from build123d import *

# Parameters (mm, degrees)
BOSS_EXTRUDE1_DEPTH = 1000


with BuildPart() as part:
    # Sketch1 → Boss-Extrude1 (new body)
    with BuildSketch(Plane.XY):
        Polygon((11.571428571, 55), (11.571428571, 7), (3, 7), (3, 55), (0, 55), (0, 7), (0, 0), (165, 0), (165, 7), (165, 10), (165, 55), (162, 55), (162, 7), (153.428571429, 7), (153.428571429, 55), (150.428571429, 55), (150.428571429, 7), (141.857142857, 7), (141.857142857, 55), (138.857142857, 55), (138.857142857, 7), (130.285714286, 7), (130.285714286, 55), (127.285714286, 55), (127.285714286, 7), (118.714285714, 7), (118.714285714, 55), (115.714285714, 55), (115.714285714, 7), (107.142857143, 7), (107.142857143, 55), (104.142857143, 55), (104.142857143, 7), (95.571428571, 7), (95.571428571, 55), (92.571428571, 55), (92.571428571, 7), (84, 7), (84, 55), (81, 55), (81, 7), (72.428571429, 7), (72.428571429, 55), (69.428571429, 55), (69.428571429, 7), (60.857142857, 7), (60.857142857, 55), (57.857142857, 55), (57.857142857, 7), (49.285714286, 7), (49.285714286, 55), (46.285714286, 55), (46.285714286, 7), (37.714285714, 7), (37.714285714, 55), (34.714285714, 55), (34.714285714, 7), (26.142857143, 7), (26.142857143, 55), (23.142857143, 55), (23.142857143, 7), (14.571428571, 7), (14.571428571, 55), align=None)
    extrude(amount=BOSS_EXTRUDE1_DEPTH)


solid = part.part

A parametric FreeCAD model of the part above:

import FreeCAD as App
import Part
import Sketcher

V = App.Vector
Q = App.Units.Quantity

doc = App.newDocument("Part")
body = doc.addObject("PartDesign::Body", "Body")

# Sketch on XY plane
sketch1 = body.newObject("Sketcher::SketchObject", "Sketch")
sketch1.AttachmentSupport = (doc.getObject("XY_Plane"), [""])
sketch1.MapMode = "FlatFace"
sketch1.addGeometry([
    Part.LineSegment(V(11.571429, 55, 0), V(11.571429, 7, 0)),  # 0
    Part.LineSegment(V(11.571429, 7, 0), V(3, 7, 0)),  # 1
    Part.LineSegment(V(3, 7, 0), V(3, 55, 0)),  # 2
    Part.LineSegment(V(3, 55, 0), V(0, 55, 0)),  # 3
    Part.LineSegment(V(0, 55, 0), V(0, 0, 0)),  # 4
    Part.LineSegment(V(0, 0, 0), V(165, 0, 0)),  # 5
    Part.LineSegment(V(165, 0, 0), V(165, 55, 0)),  # 6
    Part.LineSegment(V(165, 55, 0), V(162, 55, 0)),  # 7
    Part.LineSegment(V(162, 55, 0), V(162, 7, 0)),  # 8
    Part.LineSegment(V(162, 7, 0), V(153.428571, 7, 0)),  # 9
    Part.LineSegment(V(153.428571, 7, 0), V(153.428571, 55, 0)),  # 10
    Part.LineSegment(V(153.428571, 55, 0), V(150.428571, 55, 0)),  # 11
    Part.LineSegment(V(150.428571, 55, 0), V(150.428571, 7, 0)),  # 12
    Part.LineSegment(V(150.428571, 7, 0), V(141.857143, 7, 0)),  # 13
    Part.LineSegment(V(141.857143, 7, 0), V(141.857143, 55, 0)),  # 14
    Part.LineSegment(V(141.857143, 55, 0), V(138.857143, 55, 0)),  # 15
    Part.LineSegment(V(138.857143, 55, 0), V(138.857143, 7, 0)),  # 16
    Part.LineSegment(V(138.857143, 7, 0), V(130.285714, 7, 0)),  # 17
    Part.LineSegment(V(130.285714, 7, 0), V(130.285714, 55, 0)),  # 18
    Part.LineSegment(V(130.285714, 55, 0), V(127.285714, 55, 0)),  # 19
    Part.LineSegment(V(127.285714, 55, 0), V(127.285714, 7, 0)),  # 20
    Part.LineSegment(V(127.285714, 7, 0), V(118.714286, 7, 0)),  # 21
    Part.LineSegment(V(118.714286, 7, 0), V(118.714286, 55, 0)),  # 22
    Part.LineSegment(V(118.714286, 55, 0), V(115.714286, 55, 0)),  # 23
    Part.LineSegment(V(115.714286, 55, 0), V(115.714286, 7, 0)),  # 24
    Part.LineSegment(V(115.714286, 7, 0), V(107.142857, 7, 0)),  # 25
    Part.LineSegment(V(107.142857, 7, 0), V(107.142857, 55, 0)),  # 26
    Part.LineSegment(V(107.142857, 55, 0), V(104.142857, 55, 0)),  # 27
    Part.LineSegment(V(104.142857, 55, 0), V(104.142857, 7, 0)),  # 28
    Part.LineSegment(V(104.142857, 7, 0), V(95.571429, 7, 0)),  # 29
    Part.LineSegment(V(95.571429, 7, 0), V(95.571429, 55, 0)),  # 30
    Part.LineSegment(V(95.571429, 55, 0), V(92.571429, 55, 0)),  # 31
    Part.LineSegment(V(92.571429, 55, 0), V(92.571429, 7, 0)),  # 32
    Part.LineSegment(V(92.571429, 7, 0), V(84, 7, 0)),  # 33
    Part.LineSegment(V(84, 7, 0), V(84, 55, 0)),  # 34
    Part.LineSegment(V(84, 55, 0), V(81, 55, 0)),  # 35
    Part.LineSegment(V(81, 55, 0), V(81, 7, 0)),  # 36
    Part.LineSegment(V(81, 7, 0), V(72.428571, 7, 0)),  # 37
    Part.LineSegment(V(72.428571, 7, 0), V(72.428571, 55, 0)),  # 38
    Part.LineSegment(V(72.428571, 55, 0), V(69.428571, 55, 0)),  # 39
    Part.LineSegment(V(69.428571, 55, 0), V(69.428571, 7, 0)),  # 40
    Part.LineSegment(V(69.428571, 7, 0), V(60.857143, 7, 0)),  # 41
    Part.LineSegment(V(60.857143, 7, 0), V(60.857143, 55, 0)),  # 42
    Part.LineSegment(V(60.857143, 55, 0), V(57.857143, 55, 0)),  # 43
    Part.LineSegment(V(57.857143, 55, 0), V(57.857143, 7, 0)),  # 44
    Part.LineSegment(V(57.857143, 7, 0), V(49.285714, 7, 0)),  # 45
    Part.LineSegment(V(49.285714, 7, 0), V(49.285714, 55, 0)),  # 46
    Part.LineSegment(V(49.285714, 55, 0), V(46.285714, 55, 0)),  # 47
    Part.LineSegment(V(46.285714, 55, 0), V(46.285714, 7, 0)),  # 48
    Part.LineSegment(V(46.285714, 7, 0), V(37.714286, 7, 0)),  # 49
    Part.LineSegment(V(37.714286, 7, 0), V(37.714286, 55, 0)),  # 50
    Part.LineSegment(V(37.714286, 55, 0), V(34.714286, 55, 0)),  # 51
    Part.LineSegment(V(34.714286, 55, 0), V(34.714286, 7, 0)),  # 52
    Part.LineSegment(V(34.714286, 7, 0), V(26.142857, 7, 0)),  # 53
    Part.LineSegment(V(26.142857, 7, 0), V(26.142857, 55, 0)),  # 54
    Part.LineSegment(V(26.142857, 55, 0), V(23.142857, 55, 0)),  # 55
    Part.LineSegment(V(23.142857, 55, 0), V(23.142857, 7, 0)),  # 56
    Part.LineSegment(V(23.142857, 7, 0), V(14.571429, 7, 0)),  # 57
    Part.LineSegment(V(14.571429, 7, 0), V(14.571429, 55, 0)),  # 58
    Part.LineSegment(V(14.571429, 55, 0), V(11.571429, 55, 0)),  # 59
], False)
sketch1.addConstraint([
    Sketcher.Constraint("Coincident", 0, 2, 1, 1),
    Sketcher.Constraint("Coincident", 1, 2, 2, 1),
    Sketcher.Constraint("Coincident", 2, 2, 3, 1),
    Sketcher.Constraint("Coincident", 3, 2, 4, 1),
    Sketcher.Constraint("Coincident", 4, 2, 5, 1),
    Sketcher.Constraint("Coincident", 5, 2, 6, 1),
    Sketcher.Constraint("Coincident", 6, 2, 7, 1),
    Sketcher.Constraint("Coincident", 7, 2, 8, 1),
    Sketcher.Constraint("Coincident", 8, 2, 9, 1),
    Sketcher.Constraint("Coincident", 9, 2, 10, 1),
    Sketcher.Constraint("Coincident", 10, 2, 11, 1),
    Sketcher.Constraint("Coincident", 11, 2, 12, 1),
    Sketcher.Constraint("Coincident", 12, 2, 13, 1),
    Sketcher.Constraint("Coincident", 13, 2, 14, 1),
    Sketcher.Constraint("Coincident", 14, 2, 15, 1),
    Sketcher.Constraint("Coincident", 15, 2, 16, 1),
    Sketcher.Constraint("Coincident", 16, 2, 17, 1),
    Sketcher.Constraint("Coincident", 17, 2, 18, 1),
    Sketcher.Constraint("Coincident", 18, 2, 19, 1),
    Sketcher.Constraint("Coincident", 19, 2, 20, 1),
    Sketcher.Constraint("Coincident", 20, 2, 21, 1),
    Sketcher.Constraint("Coincident", 21, 2, 22, 1),
    Sketcher.Constraint("Coincident", 22, 2, 23, 1),
    Sketcher.Constraint("Coincident", 23, 2, 24, 1),
    Sketcher.Constraint("Coincident", 24, 2, 25, 1),
    Sketcher.Constraint("Coincident", 25, 2, 26, 1),
    Sketcher.Constraint("Coincident", 26, 2, 27, 1),
    Sketcher.Constraint("Coincident", 27, 2, 28, 1),
    Sketcher.Constraint("Coincident", 28, 2, 29, 1),
    Sketcher.Constraint("Coincident", 29, 2, 30, 1),
    Sketcher.Constraint("Coincident", 30, 2, 31, 1),
    Sketcher.Constraint("Coincident", 31, 2, 32, 1),
    Sketcher.Constraint("Coincident", 32, 2, 33, 1),
    Sketcher.Constraint("Coincident", 33, 2, 34, 1),
    Sketcher.Constraint("Coincident", 34, 2, 35, 1),
    Sketcher.Constraint("Coincident", 35, 2, 36, 1),
    Sketcher.Constraint("Coincident", 36, 2, 37, 1),
    Sketcher.Constraint("Coincident", 37, 2, 38, 1),
    Sketcher.Constraint("Coincident", 38, 2, 39, 1),
    Sketcher.Constraint("Coincident", 39, 2, 40, 1),
    Sketcher.Constraint("Coincident", 40, 2, 41, 1),
    Sketcher.Constraint("Coincident", 41, 2, 42, 1),
    Sketcher.Constraint("Coincident", 42, 2, 43, 1),
    Sketcher.Constraint("Coincident", 43, 2, 44, 1),
    Sketcher.Constraint("Coincident", 44, 2, 45, 1),
    Sketcher.Constraint("Coincident", 45, 2, 46, 1),
    Sketcher.Constraint("Coincident", 46, 2, 47, 1),
    Sketcher.Constraint("Coincident", 47, 2, 48, 1),
    Sketcher.Constraint("Coincident", 48, 2, 49, 1),
    Sketcher.Constraint("Coincident", 49, 2, 50, 1),
    Sketcher.Constraint("Coincident", 50, 2, 51, 1),
    Sketcher.Constraint("Coincident", 51, 2, 52, 1),
    Sketcher.Constraint("Coincident", 52, 2, 53, 1),
    Sketcher.Constraint("Coincident", 53, 2, 54, 1),
    Sketcher.Constraint("Coincident", 54, 2, 55, 1),
    Sketcher.Constraint("Coincident", 55, 2, 56, 1),
    Sketcher.Constraint("Coincident", 56, 2, 57, 1),
    Sketcher.Constraint("Coincident", 57, 2, 58, 1),
    Sketcher.Constraint("Coincident", 58, 2, 59, 1),
    Sketcher.Constraint("Coincident", 59, 2, 0, 1),
    Sketcher.Constraint("Vertical", 0),
    Sketcher.Constraint("Horizontal", 1),
    Sketcher.Constraint("Vertical", 2),
    Sketcher.Constraint("Horizontal", 3),
    Sketcher.Constraint("Vertical", 4),
    Sketcher.Constraint("Horizontal", 5),
    Sketcher.Constraint("Vertical", 6),
    Sketcher.Constraint("Horizontal", 7),
    Sketcher.Constraint("Vertical", 8),
    Sketcher.Constraint("Horizontal", 9),
    Sketcher.Constraint("Vertical", 10),
    Sketcher.Constraint("Horizontal", 11),
    Sketcher.Constraint("Vertical", 12),
    Sketcher.Constraint("Horizontal", 13),
    Sketcher.Constraint("Vertical", 14),
    Sketcher.Constraint("Horizontal", 15),
    Sketcher.Constraint("Vertical", 16),
    Sketcher.Constraint("Horizontal", 17),
    Sketcher.Constraint("Vertical", 18),
    Sketcher.Constraint("Horizontal", 19),
    Sketcher.Constraint("Vertical", 20),
    Sketcher.Constraint("Horizontal", 21),
    Sketcher.Constraint("Vertical", 22),
    Sketcher.Constraint("Horizontal", 23),
    Sketcher.Constraint("Vertical", 24),
    Sketcher.Constraint("Horizontal", 25),
    Sketcher.Constraint("Vertical", 26),
    Sketcher.Constraint("Horizontal", 27),
    Sketcher.Constraint("Vertical", 28),
    Sketcher.Constraint("Horizontal", 29),
    Sketcher.Constraint("Vertical", 30),
    Sketcher.Constraint("Horizontal", 31),
    Sketcher.Constraint("Vertical", 32),
    Sketcher.Constraint("Horizontal", 33),
    Sketcher.Constraint("Vertical", 34),
    Sketcher.Constraint("Horizontal", 35),
    Sketcher.Constraint("Vertical", 36),
    Sketcher.Constraint("Horizontal", 37),
    Sketcher.Constraint("Vertical", 38),
    Sketcher.Constraint("Horizontal", 39),
    Sketcher.Constraint("Vertical", 40),
    Sketcher.Constraint("Horizontal", 41),
    Sketcher.Constraint("Vertical", 42),
    Sketcher.Constraint("Horizontal", 43),
    Sketcher.Constraint("Vertical", 44),
    Sketcher.Constraint("Horizontal", 45),
    Sketcher.Constraint("Vertical", 46),
    Sketcher.Constraint("Horizontal", 47),
    Sketcher.Constraint("Vertical", 48),
    Sketcher.Constraint("Horizontal", 49),
    Sketcher.Constraint("Vertical", 50),
    Sketcher.Constraint("Horizontal", 51),
    Sketcher.Constraint("Vertical", 52),
    Sketcher.Constraint("Horizontal", 53),
    Sketcher.Constraint("Vertical", 54),
    Sketcher.Constraint("Horizontal", 55),
    Sketcher.Constraint("Vertical", 56),
    Sketcher.Constraint("Horizontal", 57),
    Sketcher.Constraint("Vertical", 58),
    Sketcher.Constraint("Horizontal", 59),
    Sketcher.Constraint("Coincident", 4, 2, -1, 1),
    Sketcher.Constraint("Horizontal", 3, 2, 6, 2),
    Sketcher.Constraint("Horizontal", 1, 2, 8, 2),
    Sketcher.Constraint("Horizontal", 7, 2, 10, 2),
    Sketcher.Constraint("Horizontal", 9, 2, 12, 2),
    Sketcher.Constraint("Horizontal", 11, 2, 14, 2),
    Sketcher.Constraint("Horizontal", 13, 2, 16, 2),
    Sketcher.Constraint("Horizontal", 15, 2, 18, 2),
    Sketcher.Constraint("Horizontal", 17, 2, 20, 2),
    Sketcher.Constraint("Horizontal", 19, 2, 22, 2),
    Sketcher.Constraint("Horizontal", 21, 2, 24, 2),
    Sketcher.Constraint("Horizontal", 23, 2, 26, 2),
    Sketcher.Constraint("Horizontal", 25, 2, 28, 2),
    Sketcher.Constraint("Horizontal", 27, 2, 30, 2),
    Sketcher.Constraint("Horizontal", 29, 2, 32, 2),
    Sketcher.Constraint("Horizontal", 31, 2, 34, 2),
    Sketcher.Constraint("Horizontal", 33, 2, 36, 2),
    Sketcher.Constraint("Horizontal", 35, 2, 38, 2),
    Sketcher.Constraint("Horizontal", 37, 2, 40, 2),
    Sketcher.Constraint("Horizontal", 39, 2, 42, 2),
    Sketcher.Constraint("Horizontal", 41, 2, 44, 2),
    Sketcher.Constraint("Horizontal", 43, 2, 46, 2),
    Sketcher.Constraint("Horizontal", 45, 2, 48, 2),
    Sketcher.Constraint("Horizontal", 47, 2, 50, 2),
    Sketcher.Constraint("Horizontal", 49, 2, 52, 2),
    Sketcher.Constraint("Horizontal", 51, 2, 54, 2),
    Sketcher.Constraint("Horizontal", 53, 2, 56, 2),
    Sketcher.Constraint("Horizontal", 55, 2, 58, 2),
    Sketcher.Constraint("Equal", 3, 7),
    Sketcher.Constraint("Equal", 1, 9),
    Sketcher.Constraint("Equal", 7, 11),
    Sketcher.Constraint("Equal", 9, 13),
    Sketcher.Constraint("Equal", 11, 15),
    Sketcher.Constraint("Equal", 13, 17),
    Sketcher.Constraint("Equal", 15, 19),
    Sketcher.Constraint("Equal", 17, 21),
    Sketcher.Constraint("Equal", 19, 23),
    Sketcher.Constraint("Equal", 21, 25),
    Sketcher.Constraint("Equal", 23, 27),
    Sketcher.Constraint("Equal", 25, 29),
    Sketcher.Constraint("Equal", 27, 31),
    Sketcher.Constraint("Equal", 29, 33),
    Sketcher.Constraint("Equal", 31, 35),
    Sketcher.Constraint("Equal", 33, 37),
    Sketcher.Constraint("Equal", 35, 39),
    Sketcher.Constraint("Equal", 37, 41),
    Sketcher.Constraint("Equal", 39, 43),
    Sketcher.Constraint("Equal", 41, 45),
    Sketcher.Constraint("Equal", 43, 47),
    Sketcher.Constraint("Equal", 45, 49),
    Sketcher.Constraint("Equal", 47, 51),
    Sketcher.Constraint("Equal", 49, 53),
    Sketcher.Constraint("Equal", 51, 55),
    Sketcher.Constraint("Equal", 53, 57),
    Sketcher.Constraint("Equal", 55, 59),
    Sketcher.Constraint("DistanceX", 3, 2, 3, 1, Q("3 mm")),
    Sketcher.Constraint("DistanceX", 5, 1, 5, 2, Q("165 mm")),
    Sketcher.Constraint("DistanceY", 0, 2, 0, 1, Q("48 mm")),
    Sketcher.Constraint("DistanceY", 4, 2, 4, 1, Q("55 mm")),
])
pad1 = body.newObject("PartDesign::Pad", "Pad")
pad1.Profile = sketch1
pad1.Length = 1000

doc.recompute()
